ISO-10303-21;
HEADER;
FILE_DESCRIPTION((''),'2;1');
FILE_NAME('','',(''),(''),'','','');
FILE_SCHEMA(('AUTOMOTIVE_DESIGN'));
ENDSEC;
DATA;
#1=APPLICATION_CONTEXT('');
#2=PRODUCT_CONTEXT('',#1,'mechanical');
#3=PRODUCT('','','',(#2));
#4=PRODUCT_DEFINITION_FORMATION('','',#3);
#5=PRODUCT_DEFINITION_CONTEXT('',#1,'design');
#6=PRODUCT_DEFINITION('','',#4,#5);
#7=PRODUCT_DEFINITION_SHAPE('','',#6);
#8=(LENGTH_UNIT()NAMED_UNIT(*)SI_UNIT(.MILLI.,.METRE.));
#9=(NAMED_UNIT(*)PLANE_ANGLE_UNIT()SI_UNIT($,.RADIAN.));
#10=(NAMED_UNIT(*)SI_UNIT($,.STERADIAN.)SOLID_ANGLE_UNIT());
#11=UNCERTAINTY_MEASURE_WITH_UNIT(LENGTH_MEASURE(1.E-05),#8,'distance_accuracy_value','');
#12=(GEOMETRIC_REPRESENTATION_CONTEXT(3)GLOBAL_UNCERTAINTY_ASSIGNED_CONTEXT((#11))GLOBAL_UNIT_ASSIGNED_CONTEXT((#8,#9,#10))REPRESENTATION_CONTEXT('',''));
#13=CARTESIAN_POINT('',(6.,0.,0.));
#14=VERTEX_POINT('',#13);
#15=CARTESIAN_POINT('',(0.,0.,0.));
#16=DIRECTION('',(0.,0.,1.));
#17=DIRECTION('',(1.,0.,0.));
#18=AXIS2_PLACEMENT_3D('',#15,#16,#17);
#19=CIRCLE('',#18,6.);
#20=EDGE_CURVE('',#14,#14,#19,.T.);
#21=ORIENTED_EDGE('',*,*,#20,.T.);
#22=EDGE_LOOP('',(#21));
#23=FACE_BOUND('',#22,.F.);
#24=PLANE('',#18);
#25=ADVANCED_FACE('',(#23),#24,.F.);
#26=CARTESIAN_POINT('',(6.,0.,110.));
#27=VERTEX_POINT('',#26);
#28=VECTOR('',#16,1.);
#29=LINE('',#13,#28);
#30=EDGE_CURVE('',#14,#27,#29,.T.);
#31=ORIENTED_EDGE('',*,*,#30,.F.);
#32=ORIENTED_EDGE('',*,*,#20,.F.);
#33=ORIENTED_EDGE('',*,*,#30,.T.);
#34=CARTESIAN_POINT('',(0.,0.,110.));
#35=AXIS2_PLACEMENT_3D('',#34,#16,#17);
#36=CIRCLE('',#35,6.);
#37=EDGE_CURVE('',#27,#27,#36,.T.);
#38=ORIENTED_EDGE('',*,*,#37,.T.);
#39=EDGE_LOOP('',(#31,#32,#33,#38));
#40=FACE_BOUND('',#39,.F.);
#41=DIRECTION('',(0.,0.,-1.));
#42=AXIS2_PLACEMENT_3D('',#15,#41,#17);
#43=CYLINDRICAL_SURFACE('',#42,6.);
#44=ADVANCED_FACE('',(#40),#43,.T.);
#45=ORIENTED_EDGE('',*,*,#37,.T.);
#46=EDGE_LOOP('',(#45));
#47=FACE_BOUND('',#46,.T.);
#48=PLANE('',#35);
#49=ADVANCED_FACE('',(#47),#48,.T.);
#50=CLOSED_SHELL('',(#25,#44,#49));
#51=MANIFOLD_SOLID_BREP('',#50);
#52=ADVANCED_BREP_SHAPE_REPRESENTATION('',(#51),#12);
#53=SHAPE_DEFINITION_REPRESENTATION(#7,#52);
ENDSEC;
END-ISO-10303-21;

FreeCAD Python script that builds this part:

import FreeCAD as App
import Part
import Sketcher
Q = App.Units.Quantity

doc = App.newDocument("Part")
body = doc.addObject("PartDesign::Body", "Body")

sketch1 = body.newObject("Sketcher::SketchObject", "Sketch")
sketch1.AttachmentSupport = (doc.getObject("XY_Plane"), [""])
sketch1.MapMode = "FlatFace"
sketch1.addGeometry(Part.Circle(App.Vector(0, 0, 0), App.Vector(0, 0, 1), 6), False)
sketch1.addConstraint(Sketcher.Constraint("Coincident", 0, 3, -1, 1))
sketch1.addConstraint(Sketcher.Constraint("Diameter", 0, Q("12 mm")))
pad1 = body.newObject("PartDesign::Pad", "Pad")
pad1.Profile = sketch1
pad1.Length = 110

doc.recompute()
